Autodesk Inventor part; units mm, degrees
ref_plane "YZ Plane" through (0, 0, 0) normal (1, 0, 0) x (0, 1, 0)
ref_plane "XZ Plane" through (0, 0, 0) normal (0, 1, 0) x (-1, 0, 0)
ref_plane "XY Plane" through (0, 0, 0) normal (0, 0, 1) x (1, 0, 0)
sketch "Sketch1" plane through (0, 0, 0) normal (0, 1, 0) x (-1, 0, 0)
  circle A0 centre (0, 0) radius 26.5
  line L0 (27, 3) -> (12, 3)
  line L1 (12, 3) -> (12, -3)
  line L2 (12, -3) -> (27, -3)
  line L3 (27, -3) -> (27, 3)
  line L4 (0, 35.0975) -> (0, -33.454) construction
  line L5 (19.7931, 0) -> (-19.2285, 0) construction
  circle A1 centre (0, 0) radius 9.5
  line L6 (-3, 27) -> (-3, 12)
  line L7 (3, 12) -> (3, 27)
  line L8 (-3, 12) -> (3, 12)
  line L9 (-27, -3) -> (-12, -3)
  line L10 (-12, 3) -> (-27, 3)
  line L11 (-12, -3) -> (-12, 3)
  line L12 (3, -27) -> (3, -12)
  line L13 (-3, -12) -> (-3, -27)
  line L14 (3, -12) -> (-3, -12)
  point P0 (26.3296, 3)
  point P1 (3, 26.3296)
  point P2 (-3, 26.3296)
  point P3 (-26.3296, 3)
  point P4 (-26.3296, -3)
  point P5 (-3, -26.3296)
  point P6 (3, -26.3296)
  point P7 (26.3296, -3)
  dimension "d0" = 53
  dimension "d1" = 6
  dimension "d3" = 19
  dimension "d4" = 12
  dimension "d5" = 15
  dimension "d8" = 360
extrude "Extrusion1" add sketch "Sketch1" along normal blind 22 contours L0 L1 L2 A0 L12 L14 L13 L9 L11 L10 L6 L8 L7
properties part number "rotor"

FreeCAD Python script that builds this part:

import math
import FreeCAD as App
import Part
import Sketcher
from FreeCAD import Vector

doc = App.newDocument("Part")
body = doc.addObject("PartDesign::Body", "Body")

# Sketch on XZ plane
sketch1 = doc.addObject("Sketcher::SketchObject", "Sketch")
body.addObject(sketch1)
sketch1.AttachmentSupport = (doc.XZ_Plane, [""])
sketch1.MapMode = "FlatFace"
sketch1.addGeometry([
    Part.LineSegment(Vector(-12, 3, 0), Vector(-26, 3, 0)),  # 0
    Part.ArcOfCircle(Part.Circle(Vector(0, 0, 0), Vector(0, 0, 1), 26), math.radians(97), math.radians(173)),  # 1
    Part.LineSegment(Vector(-3, 26, 0), Vector(-3, 12, 0)),  # 2
    Part.LineSegment(Vector(-3, 12, 0), Vector(3, 12, 0)),  # 3
    Part.LineSegment(Vector(3, 12, 0), Vector(3, 26, 0)),  # 4
    Part.ArcOfCircle(Part.Circle(Vector(0, 0, 0), Vector(0, 0, 1), 26), math.radians(7), math.radians(83)),  # 5
    Part.LineSegment(Vector(26, 3, 0), Vector(12, 3, 0)),  # 6
    Part.LineSegment(Vector(12, 3, 0), Vector(12, -3, 0)),  # 7
    Part.LineSegment(Vector(12, -3, 0), Vector(26, -3, 0)),  # 8
    Part.ArcOfCircle(Part.Circle(Vector(0, 0, 0), Vector(0, 0, 1), 26), math.radians(-83), math.radians(-7)),  # 9
    Part.LineSegment(Vector(3, -26, 0), Vector(3, -12, 0)),  # 10
    Part.LineSegment(Vector(3, -12, 0), Vector(-3, -12, 0)),  # 11
    Part.LineSegment(Vector(-3, -12, 0), Vector(-3, -26, 0)),  # 12
    Part.ArcOfCircle(Part.Circle(Vector(0, 0, 0), Vector(0, 0, 1), 26), math.radians(-173), math.radians(-97)),  # 13
    Part.LineSegment(Vector(-26, -3, 0), Vector(-12, -3, 0)),  # 14
    Part.LineSegment(Vector(-12, -3, 0), Vector(-12, 3, 0)),  # 15
    Part.Circle(Vector(0, 0, 0), Vector(0, 0, 1), 10),  # 16
], False)
sketch1.addConstraint([
    Sketcher.Constraint("Coincident", 0, 2, 1, 2),
    Sketcher.Constraint("Coincident", 1, 1, 2, 1),
    Sketcher.Constraint("Coincident", 2, 2, 3, 1),
    Sketcher.Constraint("Coincident", 3, 2, 4, 1),
    Sketcher.Constraint("Coincident", 4, 2, 5, 2),
    Sketcher.Constraint("Coincident", 5, 1, 6, 1),
    Sketcher.Constraint("Coincident", 6, 2, 7, 1),
    Sketcher.Constraint("Coincident", 7, 2, 8, 1),
    Sketcher.Constraint("Coincident", 8, 2, 9, 2),
    Sketcher.Constraint("Coincident", 9, 1, 10, 1),
    Sketcher.Constraint("Coincident", 10, 2, 11, 1),
    Sketcher.Constraint("Coincident", 11, 2, 12, 1),
    Sketcher.Constraint("Coincident", 12, 2, 13, 2),
    Sketcher.Constraint("Coincident", 13, 1, 14, 1),
    Sketcher.Constraint("Coincident", 14, 2, 15, 1),
    Sketcher.Constraint("Coincident", 15, 2, 0, 1),
    Sketcher.Constraint("Horizontal", 0),
    Sketcher.Constraint("Vertical", 2),
    Sketcher.Constraint("Horizontal", 3),
    Sketcher.Constraint("Vertical", 4),
    Sketcher.Constraint("Horizontal", 6),
    Sketcher.Constraint("Vertical", 7),
    Sketcher.Constraint("Horizontal", 8),
    Sketcher.Constraint("Vertical", 10),
    Sketcher.Constraint("Horizontal", 11),
    Sketcher.Constraint("Vertical", 12),
    Sketcher.Constraint("Horizontal", 14),
    Sketcher.Constraint("Vertical", 15),
    Sketcher.Constraint("Coincident", 1, 3, -1, 1),
    Sketcher.Constraint("Coincident", 5, 3, -1, 1),
    Sketcher.Constraint("Coincident", 9, 3, -1, 1),
    Sketcher.Constraint("Coincident", 13, 3, -1, 1),
    Sketcher.Constraint("Coincident", 16, 3, -1, 1),
    Sketcher.Constraint("Equal", 1, 5),
    Sketcher.Constraint("Equal", 5, 9),
    Sketcher.Constraint("Equal", 9, 13),
    Sketcher.Constraint("Symmetric", 2, 2, 10, 2, -1, 1),
    Sketcher.Constraint("Symmetric", 6, 2, 14, 2, -1, 1),
    Sketcher.Constraint("Horizontal", 1, 1, 4, 2),
    Sketcher.Constraint("Horizontal", 0, 2, 5, 1),
    Sketcher.Constraint("Horizontal", 9, 1, 12, 2),
    Sketcher.Constraint("Horizontal", 8, 2, 13, 1),
    Sketcher.Constraint("Equal", 14, 2),
    Sketcher.Constraint("Equal", 11, 7),
    Sketcher.Constraint("Diameter", 16, 19.0),
    Sketcher.Constraint("Radius", 1, 26.5),
    Sketcher.Constraint("DistanceX", 3, 1, 3, 2, 6.0),
    Sketcher.Constraint("DistanceY", -1, 1, 2, 2, 12.0),
])
pad1 = doc.addObject("PartDesign::Pad", "Pad")
body.addObject(pad1)
pad1.Profile = sketch1
pad1.Length = 22
pad1.Reversed = True

doc.recompute()
